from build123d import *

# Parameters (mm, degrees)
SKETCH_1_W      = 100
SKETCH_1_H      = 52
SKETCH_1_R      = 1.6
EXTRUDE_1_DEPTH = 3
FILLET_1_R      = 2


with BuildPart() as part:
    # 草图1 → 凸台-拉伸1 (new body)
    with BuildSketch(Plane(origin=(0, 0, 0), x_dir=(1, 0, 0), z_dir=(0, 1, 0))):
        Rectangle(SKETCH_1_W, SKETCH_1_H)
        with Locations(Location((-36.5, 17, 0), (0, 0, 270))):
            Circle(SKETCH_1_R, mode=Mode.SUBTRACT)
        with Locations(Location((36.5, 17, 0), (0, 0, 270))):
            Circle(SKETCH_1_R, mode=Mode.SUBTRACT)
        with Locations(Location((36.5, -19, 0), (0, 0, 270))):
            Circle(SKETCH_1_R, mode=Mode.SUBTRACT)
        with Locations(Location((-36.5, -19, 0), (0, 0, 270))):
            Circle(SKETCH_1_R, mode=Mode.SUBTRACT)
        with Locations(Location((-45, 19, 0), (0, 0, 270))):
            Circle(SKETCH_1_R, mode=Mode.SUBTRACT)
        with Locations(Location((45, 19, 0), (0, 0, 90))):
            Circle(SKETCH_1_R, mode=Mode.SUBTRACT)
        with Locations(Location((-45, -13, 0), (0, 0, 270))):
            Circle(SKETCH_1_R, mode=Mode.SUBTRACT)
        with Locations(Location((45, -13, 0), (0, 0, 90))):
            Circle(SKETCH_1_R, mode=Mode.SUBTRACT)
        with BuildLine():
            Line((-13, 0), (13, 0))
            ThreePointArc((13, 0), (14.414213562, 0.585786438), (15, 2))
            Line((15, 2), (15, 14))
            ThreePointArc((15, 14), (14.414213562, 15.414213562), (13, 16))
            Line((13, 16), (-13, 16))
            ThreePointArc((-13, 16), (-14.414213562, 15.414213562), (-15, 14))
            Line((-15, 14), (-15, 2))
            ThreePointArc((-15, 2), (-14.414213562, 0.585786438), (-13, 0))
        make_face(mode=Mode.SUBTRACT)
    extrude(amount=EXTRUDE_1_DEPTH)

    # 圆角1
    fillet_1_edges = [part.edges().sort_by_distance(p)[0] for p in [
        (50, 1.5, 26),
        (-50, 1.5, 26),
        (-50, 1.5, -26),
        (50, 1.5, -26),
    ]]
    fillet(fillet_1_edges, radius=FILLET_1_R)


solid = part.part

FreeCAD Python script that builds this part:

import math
import FreeCAD as App
import Part
import Sketcher


def edges_at(feature, points):
    """Names of the edges that pass closest to the given points."""
    edges = feature.Shape.Edges
    near = lambda p: min(range(len(edges)), key=lambda i: edges[i].distToShape(Part.Vertex(*p))[0])
    return sorted({f"Edge{near(p) + 1}" for p in points})

doc = App.newDocument("Part")
params = doc.addObject("Spreadsheet::Sheet", "Params")
for row, (alias, value) in enumerate([
    ("sketch1_radius", "2 mm"),
    ("sketch1_diameter", "3.2 mm"),
    ("sketch1_width", "100 mm"),
    ("sketch1_width2", "26 mm"),
    ("sketch1_height", "52 mm"),
    ("pad1_length", "3 mm"),
    ("fillet_radius", "2 mm"),
], start=1):
    params.set(f"A{row}", alias)
    params.set(f"B{row}", "=" + value)
    params.setAlias(f"B{row}", alias)

body = doc.addObject("PartDesign::Body", "Body")

sketch1 = body.newObject("Sketcher::SketchObject", "Sketch")
sketch1.AttachmentSupport = (doc.getObject("XZ_Plane"), [""])
sketch1.MapMode = "FlatFace"
sketch1.addGeometry([
    Part.LineSegment(App.Vector(-50, -26, 0), App.Vector(-50, 26, 0)),
    Part.LineSegment(App.Vector(-50, 26, 0), App.Vector(50, 26, 0)),
    Part.LineSegment(App.Vector(50, 26, 0), App.Vector(50, -26, 0)),
    Part.LineSegment(App.Vector(50, -26, 0), App.Vector(-50, -26, 0)),
    Part.Circle(App.Vector(-36.5, 19, 0), App.Vector(0, 0, 1), 1.6),
    Part.Circle(App.Vector(-45, 13, 0), App.Vector(0, 0, 1), 1.6),
    Part.Circle(App.Vector(36.5, 19, 0), App.Vector(0, 0, 1), 1.6),
    Part.Circle(App.Vector(45, 13, 0), App.Vector(0, 0, 1), 1.6),
    Part.Circle(App.Vector(-36.5, -17, 0), App.Vector(0, 0, 1), 1.6),
    Part.Circle(App.Vector(-45, -19, 0), App.Vector(0, 0, 1), 1.6),
    Part.LineSegment(App.Vector(13, 0, 0), App.Vector(-13, 0, 0)),
    Part.ArcOfCircle(Part.Circle(App.Vector(-13, -2, 0), App.Vector(0, 0, 1), 2), math.radians(90), math.radians(180)),
    Part.LineSegment(App.Vector(-15, -2, 0), App.Vector(-15, -14, 0)),
    Part.ArcOfCircle(Part.Circle(App.Vector(-13, -14, 0), App.Vector(0, 0, 1), 2), math.radians(-180), math.radians(-90)),
    Part.LineSegment(App.Vector(-13, -16, 0), App.Vector(13, -16, 0)),
    Part.ArcOfCircle(Part.Circle(App.Vector(13, -14, 0), App.Vector(0, 0, 1), 2), math.radians(-90), math.radians(0)),
    Part.LineSegment(App.Vector(15, -14, 0), App.Vector(15, -2, 0)),
    Part.ArcOfCircle(Part.Circle(App.Vector(13, -2, 0), App.Vector(0, 0, 1), 2), math.radians(0), math.radians(90)),
    Part.Circle(App.Vector(36.5, -17, 0), App.Vector(0, 0, 1), 1.6),
    Part.Circle(App.Vector(45, -19, 0), App.Vector(0, 0, 1), 1.6),
], False)
sketch1.addConstraint([
    Sketcher.Constraint("Coincident", 0, 2, 1, 1),
    Sketcher.Constraint("Coincident", 1, 2, 2, 1),
    Sketcher.Constraint("Coincident", 2, 2, 3, 1),
    Sketcher.Constraint("Coincident", 3, 2, 0, 1),
    Sketcher.Constraint("Tangent", 10, 2, 11, 1),
    Sketcher.Constraint("Tangent", 11, 2, 12, 1),
    Sketcher.Constraint("Tangent", 12, 2, 13, 1),
    Sketcher.Constraint("Tangent", 13, 2, 14, 1),
    Sketcher.Constraint("Tangent", 14, 2, 15, 1),
    Sketcher.Constraint("Tangent", 15, 2, 16, 1),
    Sketcher.Constraint("Tangent", 16, 2, 17, 1),
    Sketcher.Constraint("Tangent", 17, 2, 10, 1),
    Sketcher.Constraint("Vertical", 0),
    Sketcher.Constraint("Horizontal", 1),
    Sketcher.Constraint("Vertical", 2),
    Sketcher.Constraint("Horizontal", 3),
    Sketcher.Constraint("Horizontal", 10),
    Sketcher.Constraint("Vertical", 12),
    Sketcher.Constraint("Horizontal", 14),
    Sketcher.Constraint("Vertical", 16),
    Sketcher.Constraint("Equal", 4, 5),
    Sketcher.Constraint("Equal", 5, 6),
    Sketcher.Constraint("Equal", 6, 7),
    Sketcher.Constraint("Equal", 7, 8),
    Sketcher.Constraint("Equal", 8, 9),
    Sketcher.Constraint("Equal", 11, 13),
    Sketcher.Constraint("Equal", 13, 15),
    Sketcher.Constraint("Equal", 15, 17),
    Sketcher.Constraint("Equal", 9, 18),
    Sketcher.Constraint("Equal", 18, 19),
    Sketcher.Constraint("Symmetric", 0, 2, 2, 2, -1, 1),
    Sketcher.Constraint("Symmetric", 10, 2, 17, 2, -1, 1),
    Sketcher.Constraint("Symmetric", 4, 3, 6, 3, -2),
    Sketcher.Constraint("Symmetric", 5, 3, 7, 3, -2),
    Sketcher.Constraint("Symmetric", 8, 3, 18, 3, -2),
    Sketcher.Constraint("Symmetric", 9, 3, 19, 3, -2),
    Sketcher.Constraint("Vertical", 4, 3, 8, 3),
    Sketcher.Constraint("Vertical", 5, 3, 9, 3),
    Sketcher.Constraint("Radius", 11, 2.0),
    Sketcher.Constraint("Diameter", 4, 3.2),
    Sketcher.Constraint("DistanceX", 1, 1, 1, 2, 100.0),
    Sketcher.Constraint("DistanceX", 10, 2, 10, 1, 26.0),
    Sketcher.Constraint("DistanceY", 0, 1, 0, 2, 52.0),
    Sketcher.Constraint("DistanceY", 12, 2, 12, 1, 12.0),
    Sketcher.Constraint("DistanceY", -1, 1, 4, 3, 19.0),
    Sketcher.Constraint("DistanceX", 5, 3, -1, 1, 45.0),
    Sketcher.Constraint("DistanceY", -1, 1, 5, 3, 13.0),
    Sketcher.Constraint("DistanceY", 8, 3, -1, 1, 17.0),
    Sketcher.Constraint("DistanceY", 9, 3, -1, 1, 19.0),
    Sketcher.Constraint("DistanceX", 4, 3, 6, 3, 73.0),
])
sketch1.setExpression("Constraints[38]", "Params.sketch1_radius")
sketch1.setExpression("Constraints[39]", "Params.sketch1_diameter")
sketch1.setExpression("Constraints[40]", "Params.sketch1_width")
sketch1.setExpression("Constraints[41]", "Params.sketch1_width2")
sketch1.setExpression("Constraints[42]", "Params.sketch1_height")
pad1 = body.newObject("PartDesign::Pad", "Pad")
pad1.Profile = sketch1
pad1.setExpression("Length", "Params.pad1_length")
pad1.Reversed = True
doc.recompute()

fillet = body.newObject("PartDesign::Fillet", "Fillet")
fillet.Base = (pad1, edges_at(pad1, [
    (50, 1.5, 26),
    (-50, 1.5, 26),
    (-50, 1.5, -26),
    (50, 1.5, -26),
]))
fillet.setExpression("Radius", "Params.fillet_radius")

doc.recompute()
